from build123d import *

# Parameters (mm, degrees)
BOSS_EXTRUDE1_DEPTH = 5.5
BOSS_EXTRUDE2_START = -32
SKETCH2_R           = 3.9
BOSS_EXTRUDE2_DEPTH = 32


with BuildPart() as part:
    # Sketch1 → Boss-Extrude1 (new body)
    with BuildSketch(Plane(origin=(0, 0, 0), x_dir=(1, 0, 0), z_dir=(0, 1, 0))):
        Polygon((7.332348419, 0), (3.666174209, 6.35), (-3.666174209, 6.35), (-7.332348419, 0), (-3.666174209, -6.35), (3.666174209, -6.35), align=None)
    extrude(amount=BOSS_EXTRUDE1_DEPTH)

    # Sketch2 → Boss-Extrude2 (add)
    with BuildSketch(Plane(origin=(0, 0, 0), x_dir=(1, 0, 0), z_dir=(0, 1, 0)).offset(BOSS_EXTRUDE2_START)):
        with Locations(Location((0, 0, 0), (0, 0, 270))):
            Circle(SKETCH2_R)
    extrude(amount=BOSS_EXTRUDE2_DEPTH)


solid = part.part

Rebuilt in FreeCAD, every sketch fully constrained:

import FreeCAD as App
import Part
import Sketcher
from FreeCAD import Vector
Q = App.Units.Quantity

doc = App.newDocument("Part")
body = doc.addObject("PartDesign::Body", "Body")

# Sketch on XZ plane
sketch1 = body.newObject("Sketcher::SketchObject", "Sketch")
sketch1.AttachmentSupport = (doc.getObject("XZ_Plane"), [""])
sketch1.MapMode = "FlatFace"
sketch1.addGeometry([
    Part.LineSegment(Vector(7.332348, 0, 0), Vector(3.666174, -6.35, 0)),  # 0
    Part.LineSegment(Vector(3.666174, -6.35, 0), Vector(-3.666174, -6.35, 0)),  # 1
    Part.LineSegment(Vector(-3.666174, -6.35, 0), Vector(-7.332348, 0, 0)),  # 2
    Part.LineSegment(Vector(-7.332348, 0, 0), Vector(-3.666174, 6.35, 0)),  # 3
    Part.LineSegment(Vector(-3.666174, 6.35, 0), Vector(3.666174, 6.35, 0)),  # 4
    Part.LineSegment(Vector(3.666174, 6.35, 0), Vector(7.332348, 0, 0)),  # 5
], False)
sketch1.addConstraint([
    Sketcher.Constraint("Coincident", 0, 2, 1, 1),
    Sketcher.Constraint("Coincident", 1, 2, 2, 1),
    Sketcher.Constraint("Coincident", 2, 2, 3, 1),
    Sketcher.Constraint("Coincident", 3, 2, 4, 1),
    Sketcher.Constraint("Coincident", 4, 2, 5, 1),
    Sketcher.Constraint("Coincident", 5, 2, 0, 1),
    Sketcher.Constraint("Horizontal", 1),
    Sketcher.Constraint("Horizontal", 4),
    Sketcher.Constraint("Symmetric", 0, 2, 3, 2, -1, 1),
    Sketcher.Constraint("Symmetric", 2, 2, 5, 2, -1, 1),
    Sketcher.Constraint("PointOnObject", 2, 2, -1),
    Sketcher.Constraint("Parallel", 2, 5),
    Sketcher.Constraint("Vertical", 1, 2, 3, 2),
    Sketcher.Constraint("Angle", 0, Q("-120 deg")),
    Sketcher.Constraint("DistanceY", 1, 2, 3, 2, Q("12.7 mm")),
    Sketcher.Constraint("DistanceX", 1, 2, 1, 1, Q("7.332348 mm")),
])
pad1 = body.newObject("PartDesign::Pad", "Pad")
pad1.Profile = sketch1
pad1.Length = 5.5
pad1.Reversed = True

# Sketch on XZ plane
sketch2 = body.newObject("Sketcher::SketchObject", "Sketch001")
sketch2.AttachmentSupport = (doc.getObject("XZ_Plane"), [""])
sketch2.MapMode = "FlatFace"
sketch2.AttachmentOffset = App.Placement(Vector(0, 0, 32), App.Rotation())
sketch2.addGeometry(Part.Circle(Vector(0, 0, 0), Vector(0, 0, 1), 3.9), False)
sketch2.addConstraint([
    Sketcher.Constraint("Coincident", 0, 3, -1, 1),
    Sketcher.Constraint("Diameter", 0, Q("7.8 mm")),
])
pad2 = body.newObject("PartDesign::Pad", "Pad001")
pad2.Profile = sketch2
pad2.Length = 32
pad2.Reversed = True

doc.recompute()
